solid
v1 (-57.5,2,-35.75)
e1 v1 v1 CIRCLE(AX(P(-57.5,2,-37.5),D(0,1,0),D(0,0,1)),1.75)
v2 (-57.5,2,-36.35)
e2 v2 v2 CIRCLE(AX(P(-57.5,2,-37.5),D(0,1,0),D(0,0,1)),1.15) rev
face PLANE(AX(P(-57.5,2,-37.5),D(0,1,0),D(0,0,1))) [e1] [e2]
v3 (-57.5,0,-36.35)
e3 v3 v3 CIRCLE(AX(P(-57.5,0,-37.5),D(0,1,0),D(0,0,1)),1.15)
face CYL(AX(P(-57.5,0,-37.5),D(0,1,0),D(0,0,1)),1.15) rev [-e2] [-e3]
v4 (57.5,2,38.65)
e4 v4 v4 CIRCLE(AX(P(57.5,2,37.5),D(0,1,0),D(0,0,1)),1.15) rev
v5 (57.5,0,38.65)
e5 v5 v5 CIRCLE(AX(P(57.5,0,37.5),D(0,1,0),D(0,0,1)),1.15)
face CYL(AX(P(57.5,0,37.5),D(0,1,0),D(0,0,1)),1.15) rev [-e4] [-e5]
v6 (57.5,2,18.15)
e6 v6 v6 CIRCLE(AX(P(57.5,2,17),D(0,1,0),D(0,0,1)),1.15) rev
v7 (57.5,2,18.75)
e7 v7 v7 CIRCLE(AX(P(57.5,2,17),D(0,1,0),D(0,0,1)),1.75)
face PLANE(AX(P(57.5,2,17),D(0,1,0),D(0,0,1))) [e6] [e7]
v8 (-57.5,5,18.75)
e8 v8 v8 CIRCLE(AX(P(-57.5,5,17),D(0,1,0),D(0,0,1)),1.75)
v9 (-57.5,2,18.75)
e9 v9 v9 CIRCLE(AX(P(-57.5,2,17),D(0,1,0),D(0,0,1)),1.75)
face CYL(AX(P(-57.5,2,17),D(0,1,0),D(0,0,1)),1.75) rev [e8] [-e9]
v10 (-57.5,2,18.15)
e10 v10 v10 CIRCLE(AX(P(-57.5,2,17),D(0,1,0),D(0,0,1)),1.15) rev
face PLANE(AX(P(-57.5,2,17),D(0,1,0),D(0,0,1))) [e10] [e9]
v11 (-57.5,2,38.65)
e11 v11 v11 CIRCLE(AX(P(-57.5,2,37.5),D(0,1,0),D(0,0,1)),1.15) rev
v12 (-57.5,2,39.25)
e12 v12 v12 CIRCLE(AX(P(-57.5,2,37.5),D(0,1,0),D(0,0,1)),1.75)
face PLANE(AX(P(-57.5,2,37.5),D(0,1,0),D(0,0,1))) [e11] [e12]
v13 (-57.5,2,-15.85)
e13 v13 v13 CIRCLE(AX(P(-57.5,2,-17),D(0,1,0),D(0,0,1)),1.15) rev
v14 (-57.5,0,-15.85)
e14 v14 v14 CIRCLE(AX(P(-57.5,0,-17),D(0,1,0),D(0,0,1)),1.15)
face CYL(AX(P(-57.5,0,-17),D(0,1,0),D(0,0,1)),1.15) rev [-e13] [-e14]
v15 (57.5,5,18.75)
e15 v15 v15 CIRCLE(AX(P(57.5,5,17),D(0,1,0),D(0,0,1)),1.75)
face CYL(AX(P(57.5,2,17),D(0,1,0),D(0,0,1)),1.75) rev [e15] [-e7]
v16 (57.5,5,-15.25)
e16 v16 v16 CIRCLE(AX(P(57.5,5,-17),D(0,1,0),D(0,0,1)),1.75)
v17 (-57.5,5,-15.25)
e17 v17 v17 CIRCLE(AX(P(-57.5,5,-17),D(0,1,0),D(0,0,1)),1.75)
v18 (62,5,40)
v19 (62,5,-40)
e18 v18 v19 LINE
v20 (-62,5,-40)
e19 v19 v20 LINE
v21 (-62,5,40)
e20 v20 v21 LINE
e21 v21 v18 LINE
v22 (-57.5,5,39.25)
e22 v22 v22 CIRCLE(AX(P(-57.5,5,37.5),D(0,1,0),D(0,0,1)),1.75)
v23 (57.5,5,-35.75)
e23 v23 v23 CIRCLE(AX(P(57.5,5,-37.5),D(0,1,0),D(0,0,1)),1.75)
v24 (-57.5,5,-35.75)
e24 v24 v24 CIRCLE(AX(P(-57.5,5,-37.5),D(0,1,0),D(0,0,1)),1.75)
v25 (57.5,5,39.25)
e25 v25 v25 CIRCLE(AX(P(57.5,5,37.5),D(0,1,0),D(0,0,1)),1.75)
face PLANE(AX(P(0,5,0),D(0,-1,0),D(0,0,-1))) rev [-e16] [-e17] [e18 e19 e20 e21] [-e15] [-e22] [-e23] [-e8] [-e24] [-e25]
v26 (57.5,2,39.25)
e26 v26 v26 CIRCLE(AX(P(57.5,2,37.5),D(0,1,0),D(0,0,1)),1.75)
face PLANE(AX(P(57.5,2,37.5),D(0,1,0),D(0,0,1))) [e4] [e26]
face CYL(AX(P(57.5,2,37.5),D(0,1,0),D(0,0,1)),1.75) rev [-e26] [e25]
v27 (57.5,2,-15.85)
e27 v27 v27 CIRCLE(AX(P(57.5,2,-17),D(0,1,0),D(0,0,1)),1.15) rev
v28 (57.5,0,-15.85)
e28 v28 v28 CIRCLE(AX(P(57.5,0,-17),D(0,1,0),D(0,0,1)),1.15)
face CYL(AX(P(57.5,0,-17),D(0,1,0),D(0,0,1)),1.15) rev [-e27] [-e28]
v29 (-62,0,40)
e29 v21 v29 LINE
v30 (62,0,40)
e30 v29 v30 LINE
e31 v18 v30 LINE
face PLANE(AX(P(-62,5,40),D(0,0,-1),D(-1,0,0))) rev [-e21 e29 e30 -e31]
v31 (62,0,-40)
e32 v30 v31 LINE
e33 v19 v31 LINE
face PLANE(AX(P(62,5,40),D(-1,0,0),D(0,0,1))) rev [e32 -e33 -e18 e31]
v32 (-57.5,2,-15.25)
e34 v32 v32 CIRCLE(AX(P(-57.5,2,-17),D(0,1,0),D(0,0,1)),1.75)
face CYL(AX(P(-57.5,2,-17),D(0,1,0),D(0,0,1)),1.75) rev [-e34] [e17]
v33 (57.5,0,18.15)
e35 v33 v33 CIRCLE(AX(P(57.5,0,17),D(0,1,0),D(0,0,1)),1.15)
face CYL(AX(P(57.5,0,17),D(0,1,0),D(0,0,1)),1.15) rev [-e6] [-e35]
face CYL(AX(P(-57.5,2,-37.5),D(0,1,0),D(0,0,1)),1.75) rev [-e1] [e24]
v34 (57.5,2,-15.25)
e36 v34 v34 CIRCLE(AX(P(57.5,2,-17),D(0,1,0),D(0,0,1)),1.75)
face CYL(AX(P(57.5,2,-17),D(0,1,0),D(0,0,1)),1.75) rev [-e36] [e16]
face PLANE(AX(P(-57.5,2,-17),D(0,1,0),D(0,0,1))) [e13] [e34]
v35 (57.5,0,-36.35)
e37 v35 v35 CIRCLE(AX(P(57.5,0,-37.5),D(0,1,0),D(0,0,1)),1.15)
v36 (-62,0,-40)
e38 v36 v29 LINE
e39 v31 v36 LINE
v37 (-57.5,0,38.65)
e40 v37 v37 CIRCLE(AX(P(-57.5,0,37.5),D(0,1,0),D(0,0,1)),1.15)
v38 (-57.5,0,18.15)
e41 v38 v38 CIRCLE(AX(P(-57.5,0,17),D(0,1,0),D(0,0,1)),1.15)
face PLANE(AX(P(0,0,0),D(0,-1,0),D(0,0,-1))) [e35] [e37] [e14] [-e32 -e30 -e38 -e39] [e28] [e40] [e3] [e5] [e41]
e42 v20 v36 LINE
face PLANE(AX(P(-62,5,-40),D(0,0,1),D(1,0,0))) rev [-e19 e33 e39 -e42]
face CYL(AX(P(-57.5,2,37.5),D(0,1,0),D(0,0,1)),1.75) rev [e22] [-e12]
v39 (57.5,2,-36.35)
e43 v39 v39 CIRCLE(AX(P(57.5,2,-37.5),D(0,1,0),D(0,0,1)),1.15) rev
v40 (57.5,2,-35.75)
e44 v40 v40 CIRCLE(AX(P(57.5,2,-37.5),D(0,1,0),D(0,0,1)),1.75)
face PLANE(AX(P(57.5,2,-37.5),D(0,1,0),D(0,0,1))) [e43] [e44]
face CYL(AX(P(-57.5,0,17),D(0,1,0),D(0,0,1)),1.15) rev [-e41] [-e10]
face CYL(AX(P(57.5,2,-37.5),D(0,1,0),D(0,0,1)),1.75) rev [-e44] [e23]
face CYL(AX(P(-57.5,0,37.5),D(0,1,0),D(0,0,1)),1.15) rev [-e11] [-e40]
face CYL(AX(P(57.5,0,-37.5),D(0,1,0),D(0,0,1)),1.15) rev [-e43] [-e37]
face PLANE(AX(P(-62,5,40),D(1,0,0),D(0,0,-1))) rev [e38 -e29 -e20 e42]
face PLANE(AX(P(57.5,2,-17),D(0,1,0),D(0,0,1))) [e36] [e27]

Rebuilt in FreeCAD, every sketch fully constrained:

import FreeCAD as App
import Part
import Sketcher

V = App.Vector

doc = App.newDocument("Part")
params = doc.addObject("Spreadsheet::Sheet", "Params")
for row, (alias, value) in enumerate([
    ("sketch1_width", "124 mm"),
    ("sketch1_height", "80 mm"),
    ("pad1_length", "5 mm"),
    ("sketch2_diameter", "2.3 mm"),
    ("sketch3_diameter", "3.5 mm"),
    ("pocket2_length", "3 mm"),
], start=1):
    params.set(f"A{row}", alias)
    params.set(f"B{row}", "=" + value)
    params.setAlias(f"B{row}", alias)

body = doc.addObject("PartDesign::Body", "Body")

# Sketch on XZ plane
sketch1 = body.newObject("Sketcher::SketchObject", "Sketch")
sketch1.AttachmentSupport = (doc.getObject("XZ_Plane"), [""])
sketch1.MapMode = "FlatFace"
sketch1.addGeometry([
    Part.LineSegment(V(-62, -40, 0), V(-62, 40, 0)),
    Part.LineSegment(V(-62, 40, 0), V(62, 40, 0)),
    Part.LineSegment(V(62, 40, 0), V(62, -40, 0)),
    Part.LineSegment(V(62, -40, 0), V(-62, -40, 0)),
], False)
sketch1.addConstraint([
    Sketcher.Constraint("Coincident", 0, 2, 1, 1),
    Sketcher.Constraint("Coincident", 1, 2, 2, 1),
    Sketcher.Constraint("Coincident", 2, 2, 3, 1),
    Sketcher.Constraint("Coincident", 3, 2, 0, 1),
    Sketcher.Constraint("Vertical", 0),
    Sketcher.Constraint("Horizontal", 1),
    Sketcher.Constraint("Vertical", 2),
    Sketcher.Constraint("Horizontal", 3),
    Sketcher.Constraint("Symmetric", 0, 2, 2, 2, -1, 1),
    Sketcher.Constraint("DistanceX", 1, 1, 1, 2, 124.0),
    Sketcher.Constraint("DistanceY", 0, 1, 0, 2, 80.0),
])
sketch1.setExpression("Constraints[9]", "Params.sketch1_width")
sketch1.setExpression("Constraints[10]", "Params.sketch1_height")
pad1 = body.newObject("PartDesign::Pad", "Pad")
pad1.Profile = sketch1
pad1.setExpression("Length", "Params.pad1_length")
pad1.Reversed = True

# Sketch on XZ plane
sketch2 = body.newObject("Sketcher::SketchObject", "Sketch001")
sketch2.AttachmentSupport = (doc.getObject("XZ_Plane"), [""])
sketch2.MapMode = "FlatFace"
sketch2.AttachmentOffset = App.Placement(V(0, 0, -5), App.Rotation())
sketch2.addGeometry([
    Part.Circle(V(-57.5, -37.5, 0), V(0, 0, 1), 1.15),  # 0
    Part.Circle(V(-57.5, -17, 0), V(0, 0, 1), 1.15),  # 1
    Part.Circle(V(-57.5, 17, 0), V(0, 0, 1), 1.15),  # 2
    Part.Circle(V(-57.5, 37.5, 0), V(0, 0, 1), 1.15),  # 3
    Part.Circle(V(57.5, -37.5, 0), V(0, 0, 1), 1.15),  # 4
    Part.Circle(V(57.5, -17, 0), V(0, 0, 1), 1.15),  # 5
    Part.Circle(V(57.5, 17, 0), V(0, 0, 1), 1.15),  # 6
    Part.Circle(V(57.5, 37.5, 0), V(0, 0, 1), 1.15),  # 7
], False)
sketch2.addConstraint([
    Sketcher.Constraint("Equal", 0, 1),
    Sketcher.Constraint("Equal", 1, 2),
    Sketcher.Constraint("Equal", 2, 3),
    Sketcher.Constraint("Equal", 3, 4),
    Sketcher.Constraint("Equal", 4, 5),
    Sketcher.Constraint("Equal", 5, 6),
    Sketcher.Constraint("Equal", 6, 7),
    Sketcher.Constraint("Symmetric", 3, 3, 4, 3, -1, 1),
    Sketcher.Constraint("Symmetric", 2, 3, 5, 3, -1, 1),
    Sketcher.Constraint("Symmetric", 1, 3, 6, 3, -1, 1),
    Sketcher.Constraint("Symmetric", 0, 3, 7, 3, -1, 1),
    Sketcher.Constraint("Symmetric", 0, 3, 4, 3, -2),
    Sketcher.Constraint("Symmetric", 1, 3, 5, 3, -2),
    Sketcher.Constraint("Vertical", 0, 3, 1, 3),
    Sketcher.Constraint("Diameter", 0, 2.3),
    Sketcher.Constraint("DistanceY", 1, 3, -1, 1, 17.0),
    Sketcher.Constraint("DistanceY", 0, 3, 3, 3, 75.0),
    Sketcher.Constraint("DistanceX", 0, 3, 4, 3, 115.0),
])
sketch2.setExpression("Constraints[14]", "Params.sketch2_diameter")
pocket1 = body.newObject("PartDesign::Pocket", "Pocket")
pocket1.Profile = sketch2
pocket1.Type = "ThroughAll"
pocket1.Reversed = True

# Sketch on XZ plane
sketch3 = body.newObject("Sketcher::SketchObject", "Sketch002")
sketch3.AttachmentSupport = (doc.getObject("XZ_Plane"), [""])
sketch3.MapMode = "FlatFace"
sketch3.AttachmentOffset = App.Placement(V(0, 0, -5), App.Rotation())
sketch3.addGeometry([
    Part.Circle(V(-57.5, -37.5, 0), V(0, 0, 1), 1.75),  # 0
    Part.Circle(V(-57.5, -17, 0), V(0, 0, 1), 1.75),  # 1
    Part.Circle(V(-57.5, 17, 0), V(0, 0, 1), 1.75),  # 2
    Part.Circle(V(-57.5, 37.5, 0), V(0, 0, 1), 1.75),  # 3
    Part.Circle(V(57.5, -37.5, 0), V(0, 0, 1), 1.75),  # 4
    Part.Circle(V(57.5, -17, 0), V(0, 0, 1), 1.75),  # 5
    Part.Circle(V(57.5, 17, 0), V(0, 0, 1), 1.75),  # 6
    Part.Circle(V(57.5, 37.5, 0), V(0, 0, 1), 1.75),  # 7
], False)
sketch3.addConstraint([
    Sketcher.Constraint("Equal", 0, 1),
    Sketcher.Constraint("Equal", 1, 2),
    Sketcher.Constraint("Equal", 2, 3),
    Sketcher.Constraint("Equal", 3, 4),
    Sketcher.Constraint("Equal", 4, 5),
    Sketcher.Constraint("Equal", 5, 6),
    Sketcher.Constraint("Equal", 6, 7),
    Sketcher.Constraint("Symmetric", 3, 3, 4, 3, -1, 1),
    Sketcher.Constraint("Symmetric", 2, 3, 5, 3, -1, 1),
    Sketcher.Constraint("Symmetric", 1, 3, 6, 3, -1, 1),
    Sketcher.Constraint("Symmetric", 0, 3, 7, 3, -1, 1),
    Sketcher.Constraint("Symmetric", 0, 3, 4, 3, -2),
    Sketcher.Constraint("Symmetric", 1, 3, 5, 3, -2),
    Sketcher.Constraint("Vertical", 0, 3, 1, 3),
    Sketcher.Constraint("Diameter", 0, 3.5),
    Sketcher.Constraint("DistanceY", 1, 3, -1, 1, 17.0),
    Sketcher.Constraint("DistanceY", 0, 3, 3, 3, 75.0),
    Sketcher.Constraint("DistanceX", 0, 3, 4, 3, 115.0),
])
sketch3.setExpression("Constraints[14]", "Params.sketch3_diameter")
pocket2 = body.newObject("PartDesign::Pocket", "Pocket001")
pocket2.Profile = sketch3
pocket2.setExpression("Length", "Params.pocket2_length")
pocket2.Reversed = True

doc.recompute()
